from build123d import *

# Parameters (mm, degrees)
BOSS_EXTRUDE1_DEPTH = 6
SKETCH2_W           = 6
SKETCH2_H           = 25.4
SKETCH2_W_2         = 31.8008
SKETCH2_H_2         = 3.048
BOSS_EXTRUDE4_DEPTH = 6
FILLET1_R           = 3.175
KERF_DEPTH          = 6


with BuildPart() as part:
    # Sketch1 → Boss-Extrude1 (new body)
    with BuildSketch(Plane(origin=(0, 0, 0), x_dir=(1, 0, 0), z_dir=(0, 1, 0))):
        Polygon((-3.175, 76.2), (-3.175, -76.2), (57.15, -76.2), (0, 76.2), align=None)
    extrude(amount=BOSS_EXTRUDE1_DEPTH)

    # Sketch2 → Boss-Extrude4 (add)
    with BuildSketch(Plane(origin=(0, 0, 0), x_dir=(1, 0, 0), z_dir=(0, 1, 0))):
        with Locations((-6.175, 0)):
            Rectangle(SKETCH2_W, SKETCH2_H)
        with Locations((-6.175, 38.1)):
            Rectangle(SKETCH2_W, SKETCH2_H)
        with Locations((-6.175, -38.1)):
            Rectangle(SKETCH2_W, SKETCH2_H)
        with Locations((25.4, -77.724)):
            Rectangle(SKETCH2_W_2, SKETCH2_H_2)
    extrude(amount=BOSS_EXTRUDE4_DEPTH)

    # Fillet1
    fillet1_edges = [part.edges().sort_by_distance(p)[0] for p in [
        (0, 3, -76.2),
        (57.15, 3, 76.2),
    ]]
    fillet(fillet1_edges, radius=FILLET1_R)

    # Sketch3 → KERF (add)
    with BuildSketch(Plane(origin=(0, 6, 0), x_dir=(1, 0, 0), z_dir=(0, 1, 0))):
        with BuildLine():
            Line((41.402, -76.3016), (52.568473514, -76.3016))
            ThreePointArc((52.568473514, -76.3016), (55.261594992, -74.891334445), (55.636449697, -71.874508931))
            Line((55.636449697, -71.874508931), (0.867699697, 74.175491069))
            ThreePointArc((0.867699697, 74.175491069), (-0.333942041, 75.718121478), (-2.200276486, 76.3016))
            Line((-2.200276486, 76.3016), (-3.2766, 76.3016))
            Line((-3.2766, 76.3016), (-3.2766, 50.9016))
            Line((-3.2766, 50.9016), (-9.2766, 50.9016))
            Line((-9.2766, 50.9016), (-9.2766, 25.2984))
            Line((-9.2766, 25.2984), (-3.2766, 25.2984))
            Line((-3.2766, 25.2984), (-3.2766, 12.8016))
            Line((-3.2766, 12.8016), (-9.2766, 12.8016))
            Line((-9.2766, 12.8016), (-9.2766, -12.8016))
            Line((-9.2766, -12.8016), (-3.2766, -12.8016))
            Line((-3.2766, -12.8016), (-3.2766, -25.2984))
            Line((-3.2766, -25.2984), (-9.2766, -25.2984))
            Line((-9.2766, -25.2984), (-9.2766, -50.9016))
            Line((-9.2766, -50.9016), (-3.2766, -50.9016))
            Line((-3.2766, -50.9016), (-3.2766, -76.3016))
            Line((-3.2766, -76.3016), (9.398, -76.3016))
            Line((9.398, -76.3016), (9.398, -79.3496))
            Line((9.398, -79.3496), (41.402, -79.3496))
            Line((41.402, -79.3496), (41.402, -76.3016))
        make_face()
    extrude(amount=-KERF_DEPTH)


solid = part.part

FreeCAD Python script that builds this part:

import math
import FreeCAD as App
import Part
import Sketcher

V = App.Vector
Q = App.Units.Quantity


def edges_at(feature, points):
    """Names of the edges that pass closest to the given points."""
    edges = feature.Shape.Edges
    near = lambda p: min(range(len(edges)), key=lambda i: edges[i].distToShape(Part.Vertex(*p))[0])
    return sorted({f"Edge{near(p) + 1}" for p in points})

doc = App.newDocument("Part")
body = doc.addObject("PartDesign::Body", "Body")

sketch1 = body.newObject("Sketcher::SketchObject", "Sketch")
sketch1.AttachmentSupport = (doc.getObject("XZ_Plane"), [""])
sketch1.MapMode = "FlatFace"
sketch1.addGeometry([
    Part.LineSegment(V(-3.175, -76.2, 0), V(-3.175, 76.2, 0)),
    Part.LineSegment(V(-3.175, 76.2, 0), V(57.15, 76.2, 0)),
    Part.LineSegment(V(57.15, 76.2, 0), V(0, -76.2, 0)),
    Part.LineSegment(V(0, -76.2, 0), V(-3.175, -76.2, 0)),
], False)
sketch1.addConstraint([
    Sketcher.Constraint("Coincident", 0, 2, 1, 1),
    Sketcher.Constraint("Coincident", 1, 2, 2, 1),
    Sketcher.Constraint("Coincident", 2, 2, 3, 1),
    Sketcher.Constraint("Coincident", 3, 2, 0, 1),
    Sketcher.Constraint("Vertical", 0),
    Sketcher.Constraint("Horizontal", 1),
    Sketcher.Constraint("Horizontal", 3),
    Sketcher.Constraint("PointOnObject", 2, 2, -2),
    Sketcher.Constraint("DistanceY", 0, 1, 0, 2, Q("6 in")),
    Sketcher.Constraint("DistanceY", -1, 1, 0, 2, Q("3 in")),
    Sketcher.Constraint("DistanceX", 1, 1, 1, 2, Q("2.375 in")),
    Sketcher.Constraint("DistanceX", 3, 2, 3, 1, Q("0.125 in")),
])
pad1 = body.newObject("PartDesign::Pad", "Pad")
pad1.Profile = sketch1
pad1.Length = 6
pad1.Reversed = True

sketch2 = body.newObject("Sketcher::SketchObject", "Sketch001")
sketch2.AttachmentSupport = (doc.getObject("XZ_Plane"), [""])
sketch2.MapMode = "FlatFace"
sketch2.addGeometry([
    Part.LineSegment(V(-9.175, -12.7, 0), V(-9.175, 12.7, 0)),
    Part.LineSegment(V(-9.175, 12.7, 0), V(-3.175, 12.7, 0)),
    Part.LineSegment(V(-3.175, 12.7, 0), V(-3.175, -12.7, 0)),
    Part.LineSegment(V(-3.175, -12.7, 0), V(-9.175, -12.7, 0)),
    Part.LineSegment(V(-9.175, -50.8, 0), V(-9.175, -25.4, 0)),
    Part.LineSegment(V(-9.175, -25.4, 0), V(-3.175, -25.4, 0)),
    Part.LineSegment(V(-3.175, -25.4, 0), V(-3.175, -50.8, 0)),
    Part.LineSegment(V(-3.175, -50.8, 0), V(-9.175, -50.8, 0)),
    Part.LineSegment(V(-9.175, 25.4, 0), V(-9.175, 50.8, 0)),
    Part.LineSegment(V(-9.175, 50.8, 0), V(-3.175, 50.8, 0)),
    Part.LineSegment(V(-3.175, 50.8, 0), V(-3.175, 25.4, 0)),
    Part.LineSegment(V(-3.175, 25.4, 0), V(-9.175, 25.4, 0)),
    Part.LineSegment(V(9.4996, 76.2, 0), V(9.4996, 79.248, 0)),
    Part.LineSegment(V(9.4996, 79.248, 0), V(41.3004, 79.248, 0)),
    Part.LineSegment(V(41.3004, 79.248, 0), V(41.3004, 76.2, 0)),
    Part.LineSegment(V(41.3004, 76.2, 0), V(9.4996, 76.2, 0)),
], False)
sketch2.addConstraint([
    Sketcher.Constraint("Coincident", 0, 2, 1, 1),
    Sketcher.Constraint("Coincident", 1, 2, 2, 1),
    Sketcher.Constraint("Coincident", 2, 2, 3, 1),
    Sketcher.Constraint("Coincident", 3, 2, 0, 1),
    Sketcher.Constraint("Coincident", 4, 2, 5, 1),
    Sketcher.Constraint("Coincident", 5, 2, 6, 1),
    Sketcher.Constraint("Coincident", 6, 2, 7, 1),
    Sketcher.Constraint("Coincident", 7, 2, 4, 1),
    Sketcher.Constraint("Coincident", 8, 2, 9, 1),
    Sketcher.Constraint("Coincident", 9, 2, 10, 1),
    Sketcher.Constraint("Coincident", 10, 2, 11, 1),
    Sketcher.Constraint("Coincident", 11, 2, 8, 1),
    Sketcher.Constraint("Coincident", 12, 2, 13, 1),
    Sketcher.Constraint("Coincident", 13, 2, 14, 1),
    Sketcher.Constraint("Coincident", 14, 2, 15, 1),
    Sketcher.Constraint("Coincident", 15, 2, 12, 1),
    Sketcher.Constraint("Vertical", 0),
    Sketcher.Constraint("Horizontal", 1),
    Sketcher.Constraint("Vertical", 2),
    Sketcher.Constraint("Horizontal", 3),
    Sketcher.Constraint("Vertical", 4),
    Sketcher.Constraint("Horizontal", 5),
    Sketcher.Constraint("Vertical", 6),
    Sketcher.Constraint("Horizontal", 7),
    Sketcher.Constraint("Vertical", 8),
    Sketcher.Constraint("Horizontal", 9),
    Sketcher.Constraint("Vertical", 10),
    Sketcher.Constraint("Horizontal", 11),
    Sketcher.Constraint("Vertical", 12),
    Sketcher.Constraint("Horizontal", 13),
    Sketcher.Constraint("Vertical", 14),
    Sketcher.Constraint("Horizontal", 15),
    Sketcher.Constraint("Symmetric", 7, 2, 8, 2, -1),
    Sketcher.Constraint("Symmetric", 5, 2, 10, 2, -1),
    Sketcher.Constraint("Vertical", 3, 2, 4, 2),
    Sketcher.Constraint("Vertical", 2, 2, 5, 2),
    Sketcher.Constraint("Equal", 2, 4),
    Sketcher.Constraint("DistanceY", 0, 1, 0, 2, Q("1 in")),
    Sketcher.Constraint("DistanceY", 4, 2, -1, 1, Q("1 in")),
    Sketcher.Constraint("DistanceY", -1, 1, 14, 2, Q("3 in")),
    Sketcher.Constraint("DistanceY", 12, 1, 12, 2, Q("0.12 in")),
    Sketcher.Constraint("DistanceY", -1, 1, 0, 2, Q("0.5 in")),
    Sketcher.Constraint("DistanceX", 13, 1, 13, 2, Q("1.252 in")),
    Sketcher.Constraint("DistanceX", 1, 2, -1, 1, Q("0.125 in")),
    Sketcher.Constraint("DistanceX", -1, 1, 12, 2, Q("0.374 in")),
    Sketcher.Constraint("DistanceX", 1, 1, 1, 2, Q("6 mm")),
])
pad2 = body.newObject("PartDesign::Pad", "Pad001")
pad2.Profile = sketch2
pad2.Length = 6
pad2.Reversed = True
doc.recompute()

fillet = body.newObject("PartDesign::Fillet", "Fillet")
fillet.Base = (pad2, edges_at(pad2, [(0, 3, -76.2), (57.15, 3, 76.2)]))
fillet.Radius = Q("0.125 in")

sketch3 = body.newObject("Sketcher::SketchObject", "Sketch002")
sketch3.AttachmentSupport = (doc.getObject("XZ_Plane"), [""])
sketch3.MapMode = "FlatFace"
sketch3.AttachmentOffset = App.Placement(V(0, 0, -6), App.Rotation())
sketch3.addGeometry([
    Part.LineSegment(V(41.402, 76.3016, 0), V(52.568474, 76.3016, 0)),
    Part.ArcOfCircle(Part.Circle(V(52.568474, 73.025, 0), V(0, 0, 1), 3.2766), math.radians(-20.556045), math.radians(90)),
    Part.LineSegment(V(55.63645, 71.874509, 0), V(0.8677, -74.175491, 0)),
    Part.ArcOfCircle(Part.Circle(V(-2.200276, -73.025, 0), V(0, 0, 1), 3.2766), math.radians(-90), math.radians(-20.556045)),
    Part.LineSegment(V(-2.200276, -76.3016, 0), V(-3.2766, -76.3016, 0)),
    Part.LineSegment(V(-3.2766, -76.3016, 0), V(-3.2766, -50.9016, 0)),
    Part.LineSegment(V(-3.2766, -50.9016, 0), V(-9.2766, -50.9016, 0)),
    Part.LineSegment(V(-9.2766, -50.9016, 0), V(-9.2766, -25.2984, 0)),
    Part.LineSegment(V(-9.2766, -25.2984, 0), V(-3.2766, -25.2984, 0)),
    Part.LineSegment(V(-3.2766, -25.2984, 0), V(-3.2766, -12.8016, 0)),
    Part.LineSegment(V(-3.2766, -12.8016, 0), V(-9.2766, -12.8016, 0)),
    Part.LineSegment(V(-9.2766, -12.8016, 0), V(-9.2766, 12.8016, 0)),
    Part.LineSegment(V(-9.2766, 12.8016, 0), V(-3.2766, 12.8016, 0)),
    Part.LineSegment(V(-3.2766, 12.8016, 0), V(-3.2766, 25.2984, 0)),
    Part.LineSegment(V(-3.2766, 25.2984, 0), V(-9.2766, 25.2984, 0)),
    Part.LineSegment(V(-9.2766, 25.2984, 0), V(-9.2766, 50.9016, 0)),
    Part.LineSegment(V(-9.2766, 50.9016, 0), V(-3.2766, 50.9016, 0)),
    Part.LineSegment(V(-3.2766, 50.9016, 0), V(-3.2766, 76.3016, 0)),
    Part.LineSegment(V(-3.2766, 76.3016, 0), V(9.398, 76.3016, 0)),
    Part.LineSegment(V(9.398, 76.3016, 0), V(9.398, 79.3496, 0)),
    Part.LineSegment(V(9.398, 79.3496, 0), V(41.402, 79.3496, 0)),
    Part.LineSegment(V(41.402, 79.3496, 0), V(41.402, 76.3016, 0)),
], False)
sketch3.addConstraint([
    Sketcher.Constraint("Tangent", 0, 2, 1, 2),
    Sketcher.Constraint("Tangent", 1, 1, 2, 1),
    Sketcher.Constraint("Tangent", 2, 2, 3, 2),
    Sketcher.Constraint("Tangent", 3, 1, 4, 1),
    Sketcher.Constraint("Coincident", 4, 2, 5, 1),
    Sketcher.Constraint("Coincident", 5, 2, 6, 1),
    Sketcher.Constraint("Coincident", 6, 2, 7, 1),
    Sketcher.Constraint("Coincident", 7, 2, 8, 1),
    Sketcher.Constraint("Coincident", 8, 2, 9, 1),
    Sketcher.Constraint("Coincident", 9, 2, 10, 1),
    Sketcher.Constraint("Coincident", 10, 2, 11, 1),
    Sketcher.Constraint("Coincident", 11, 2, 12, 1),
    Sketcher.Constraint("Coincident", 12, 2, 13, 1),
    Sketcher.Constraint("Coincident", 13, 2, 14, 1),
    Sketcher.Constraint("Coincident", 14, 2, 15, 1),
    Sketcher.Constraint("Coincident", 15, 2, 16, 1),
    Sketcher.Constraint("Coincident", 16, 2, 17, 1),
    Sketcher.Constraint("Coincident", 17, 2, 18, 1),
    Sketcher.Constraint("Coincident", 18, 2, 19, 1),
    Sketcher.Constraint("Coincident", 19, 2, 20, 1),
    Sketcher.Constraint("Coincident", 20, 2, 21, 1),
    Sketcher.Constraint("Coincident", 21, 2, 0, 1),
    Sketcher.Constraint("Horizontal", 0),
    Sketcher.Constraint("Horizontal", 4),
    Sketcher.Constraint("Vertical", 5),
    Sketcher.Constraint("Horizontal", 6),
    Sketcher.Constraint("Vertical", 7),
    Sketcher.Constraint("Horizontal", 8),
    Sketcher.Constraint("Vertical", 9),
    Sketcher.Constraint("Horizontal", 10),
    Sketcher.Constraint("Vertical", 11),
    Sketcher.Constraint("Horizontal", 12),
    Sketcher.Constraint("Vertical", 13),
    Sketcher.Constraint("Horizontal", 14),
    Sketcher.Constraint("Vertical", 15),
    Sketcher.Constraint("Horizontal", 16),
    Sketcher.Constraint("Vertical", 17),
    Sketcher.Constraint("Horizontal", 18),
    Sketcher.Constraint("Vertical", 19),
    Sketcher.Constraint("Horizontal", 20),
    Sketcher.Constraint("Vertical", 21),
    Sketcher.Constraint("Equal", 1, 3),
    Sketcher.Constraint("Symmetric", 9, 2, 12, 2, -1),
    Sketcher.Constraint("Symmetric", 7, 2, 14, 2, -1),
    Sketcher.Constraint("Symmetric", 5, 2, 16, 2, -1),
    Sketcher.Constraint("Horizontal", 0, 2, 17, 2),
    Sketcher.Constraint("Vertical", 5, 2, 8, 2),
    Sketcher.Constraint("Vertical", 7, 2, 10, 2),
    Sketcher.Constraint("Equal", 7, 11),
    Sketcher.Constraint("Equal", 5, 17),
    Sketcher.Constraint("DistanceY", 5, 1, 5, 2, Q("1 in")),
    Sketcher.Constraint("Radius", 1, Q("0.129 in")),
    Sketcher.Constraint("DistanceX", 20, 1, 20, 2, Q("1.26 in")),
    Sketcher.Constraint("DistanceY", 19, 1, 19, 2, Q("0.12 in")),
    Sketcher.Constraint("DistanceY", 5, 2, 9, 2, Q("1.5 in")),
    Sketcher.Constraint("DistanceX", 18, 1, 18, 2, Q("0.499 in")),
    Sketcher.Constraint("DistanceY", 7, 1, 7, 2, Q("1.008 in")),
    Sketcher.Constraint("DistanceX", -1, 1, 18, 2, Q("0.37 in")),
    Sketcher.Constraint("DistanceX", 3, 3, 1, 3, Q("2.15625 in")),
    Sketcher.Constraint("DistanceX", 6, 2, 6, 1, Q("6 mm")),
    Sketcher.Constraint("DistanceX", -1, 1, 2, 2, Q("0.8677 mm")),
])
pad3 = body.newObject("PartDesign::Pad", "Pad002")
pad3.Profile = sketch3
pad3.Length = 6

doc.recompute()
